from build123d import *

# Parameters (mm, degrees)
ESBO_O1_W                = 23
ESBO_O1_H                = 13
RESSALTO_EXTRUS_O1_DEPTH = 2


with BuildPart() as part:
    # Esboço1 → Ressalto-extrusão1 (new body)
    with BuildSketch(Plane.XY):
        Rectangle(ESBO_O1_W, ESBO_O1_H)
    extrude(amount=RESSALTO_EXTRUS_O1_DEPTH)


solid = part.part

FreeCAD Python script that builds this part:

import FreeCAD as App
import Part
import Sketcher
from FreeCAD import Vector
Q = App.Units.Quantity


def add_polygon(sketch, points):
    """Adds a closed chain of lines whose ends are joined by coincident constraints."""
    first, n = sketch.GeometryCount, len(points)
    for a, b in zip(points, points[1:] + points[:1]):
        sketch.addGeometry(Part.LineSegment(App.Vector(*a, 0), App.Vector(*b, 0)), False)
    for i in range(n):
        sketch.addConstraint(Sketcher.Constraint("Coincident", first + i, 2, first + (i + 1) % n, 1))

doc = App.newDocument("Part")
body = doc.addObject("PartDesign::Body", "Body")

# Sketch on XY plane
sketch1 = body.newObject("Sketcher::SketchObject", "Sketch")
sketch1.AttachmentSupport = (doc.getObject("XY_Plane"), [""])
sketch1.MapMode = "FlatFace"
add_polygon(sketch1, [(-12, 6), (-12, -6), (12, -6), (12, 6)])  # lines 0-3
sketch1.addConstraint(Sketcher.Constraint("Vertical", 0))
sketch1.addConstraint(Sketcher.Constraint("Horizontal", 1))
sketch1.addConstraint(Sketcher.Constraint("Vertical", 2))
sketch1.addConstraint(Sketcher.Constraint("Horizontal", 3))
sketch1.addConstraint(Sketcher.Constraint("Symmetric", 0, 2, 2, 2, -1, 1))
sketch1.addConstraint(Sketcher.Constraint("DistanceX", 1, 1, 1, 2, Q("23 mm")))
sketch1.addConstraint(Sketcher.Constraint("DistanceY", 0, 2, 0, 1, Q("13 mm")))
pad1 = body.newObject("PartDesign::Pad", "Pad")
pad1.Profile = sketch1
pad1.Length = 2

doc.recompute()
